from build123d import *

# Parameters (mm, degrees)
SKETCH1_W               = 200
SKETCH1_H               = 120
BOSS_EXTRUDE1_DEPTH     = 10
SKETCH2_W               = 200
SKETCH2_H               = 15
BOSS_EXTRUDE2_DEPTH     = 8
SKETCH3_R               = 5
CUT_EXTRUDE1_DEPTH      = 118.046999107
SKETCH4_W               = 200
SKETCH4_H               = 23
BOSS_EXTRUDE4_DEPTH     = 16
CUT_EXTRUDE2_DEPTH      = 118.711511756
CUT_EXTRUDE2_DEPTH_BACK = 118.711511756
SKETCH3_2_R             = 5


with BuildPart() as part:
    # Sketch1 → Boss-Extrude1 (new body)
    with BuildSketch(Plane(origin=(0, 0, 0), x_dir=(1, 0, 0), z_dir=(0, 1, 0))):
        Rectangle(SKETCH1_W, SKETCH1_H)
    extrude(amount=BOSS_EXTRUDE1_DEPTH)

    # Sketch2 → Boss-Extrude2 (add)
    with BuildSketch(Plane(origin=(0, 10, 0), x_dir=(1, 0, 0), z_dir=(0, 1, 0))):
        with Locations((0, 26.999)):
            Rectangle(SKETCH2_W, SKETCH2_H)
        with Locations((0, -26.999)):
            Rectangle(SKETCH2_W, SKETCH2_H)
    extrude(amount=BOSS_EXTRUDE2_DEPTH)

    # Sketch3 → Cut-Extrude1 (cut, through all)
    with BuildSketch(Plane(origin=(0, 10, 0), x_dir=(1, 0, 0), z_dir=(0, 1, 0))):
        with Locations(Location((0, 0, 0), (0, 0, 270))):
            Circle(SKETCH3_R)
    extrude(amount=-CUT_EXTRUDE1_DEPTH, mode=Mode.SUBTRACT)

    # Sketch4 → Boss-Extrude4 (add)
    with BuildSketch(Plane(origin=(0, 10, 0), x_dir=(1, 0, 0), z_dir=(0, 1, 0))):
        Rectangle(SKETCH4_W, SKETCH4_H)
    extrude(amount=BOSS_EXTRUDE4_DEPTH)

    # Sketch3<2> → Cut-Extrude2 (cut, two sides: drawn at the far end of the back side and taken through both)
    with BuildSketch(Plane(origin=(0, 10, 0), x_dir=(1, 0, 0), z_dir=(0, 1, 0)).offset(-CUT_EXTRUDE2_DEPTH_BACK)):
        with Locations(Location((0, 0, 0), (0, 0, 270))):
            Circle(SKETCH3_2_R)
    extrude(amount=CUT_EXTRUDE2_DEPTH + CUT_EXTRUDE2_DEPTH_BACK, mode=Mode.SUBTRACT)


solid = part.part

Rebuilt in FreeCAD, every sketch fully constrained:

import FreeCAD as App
import Part
import Sketcher
from FreeCAD import Vector

doc = App.newDocument("Part")
body = doc.addObject("PartDesign::Body", "Body")

sketch1 = body.newObject("Sketcher::SketchObject", "Sketch")
sketch1.AttachmentSupport = (doc.getObject("XZ_Plane"), [""])
sketch1.MapMode = "FlatFace"
sketch1.addGeometry([
    Part.LineSegment(Vector(-100, -60, 0), Vector(-100, 60, 0)),
    Part.LineSegment(Vector(-100, 60, 0), Vector(100, 60, 0)),
    Part.LineSegment(Vector(100, 60, 0), Vector(100, -60, 0)),
    Part.LineSegment(Vector(100, -60, 0), Vector(-100, -60, 0)),
], False)
sketch1.addConstraint([
    Sketcher.Constraint("Coincident", 0, 2, 1, 1),
    Sketcher.Constraint("Coincident", 1, 2, 2, 1),
    Sketcher.Constraint("Coincident", 2, 2, 3, 1),
    Sketcher.Constraint("Coincident", 3, 2, 0, 1),
    Sketcher.Constraint("Vertical", 0),
    Sketcher.Constraint("Horizontal", 1),
    Sketcher.Constraint("Vertical", 2),
    Sketcher.Constraint("Horizontal", 3),
    Sketcher.Constraint("Symmetric", 0, 2, 2, 2, -1, 1),
    Sketcher.Constraint("DistanceX", 1, 1, 1, 2, 200.0),
    Sketcher.Constraint("DistanceY", 0, 1, 0, 2, 120.0),
])
pad1 = body.newObject("PartDesign::Pad", "Pad")
pad1.Profile = sketch1
pad1.Length = 10
pad1.Reversed = True

sketch2 = body.newObject("Sketcher::SketchObject", "Sketch001")
sketch2.AttachmentSupport = (doc.getObject("XZ_Plane"), [""])
sketch2.MapMode = "FlatFace"
sketch2.AttachmentOffset = App.Placement(Vector(0, 0, -10), App.Rotation())
sketch2.addGeometry([
    Part.LineSegment(Vector(-100, -34, 0), Vector(-100, -19, 0)),
    Part.LineSegment(Vector(-100, -19, 0), Vector(100, -19, 0)),
    Part.LineSegment(Vector(100, -19, 0), Vector(100, -34, 0)),
    Part.LineSegment(Vector(100, -34, 0), Vector(-100, -34, 0)),
    Part.LineSegment(Vector(-100, 19, 0), Vector(-100, 34, 0)),
    Part.LineSegment(Vector(-100, 34, 0), Vector(100, 34, 0)),
    Part.LineSegment(Vector(100, 34, 0), Vector(100, 19, 0)),
    Part.LineSegment(Vector(100, 19, 0), Vector(-100, 19, 0)),
], False)
sketch2.addConstraint([
    Sketcher.Constraint("Coincident", 0, 2, 1, 1),
    Sketcher.Constraint("Coincident", 1, 2, 2, 1),
    Sketcher.Constraint("Coincident", 2, 2, 3, 1),
    Sketcher.Constraint("Coincident", 3, 2, 0, 1),
    Sketcher.Constraint("Coincident", 4, 2, 5, 1),
    Sketcher.Constraint("Coincident", 5, 2, 6, 1),
    Sketcher.Constraint("Coincident", 6, 2, 7, 1),
    Sketcher.Constraint("Coincident", 7, 2, 4, 1),
    Sketcher.Constraint("Vertical", 0),
    Sketcher.Constraint("Horizontal", 1),
    Sketcher.Constraint("Vertical", 2),
    Sketcher.Constraint("Horizontal", 3),
    Sketcher.Constraint("Vertical", 4),
    Sketcher.Constraint("Horizontal", 5),
    Sketcher.Constraint("Vertical", 6),
    Sketcher.Constraint("Horizontal", 7),
    Sketcher.Constraint("Symmetric", 2, 2, 4, 2, -1, 1),
    Sketcher.Constraint("Symmetric", 0, 2, 6, 2, -1, 1),
    Sketcher.Constraint("Vertical", 3, 2, 4, 2),
    Sketcher.Constraint("DistanceX", 1, 1, 1, 2, 200.0),
    Sketcher.Constraint("DistanceY", 0, 1, 0, 2, 15.0),
    Sketcher.Constraint("DistanceY", 0, 2, -1, 1, 19.499),
])
pad2 = body.newObject("PartDesign::Pad", "Pad001")
pad2.Profile = sketch2
pad2.Length = 8
pad2.Reversed = True

sketch3 = body.newObject("Sketcher::SketchObject", "Sketch002")
sketch3.AttachmentSupport = (doc.getObject("XZ_Plane"), [""])
sketch3.MapMode = "FlatFace"
sketch3.AttachmentOffset = App.Placement(Vector(0, 0, -10), App.Rotation())
sketch3.addGeometry(Part.Circle(Vector(0, 0, 0), Vector(0, 0, 1), 5), False)
sketch3.addConstraint([
    Sketcher.Constraint("Coincident", 0, 3, -1, 1),
    Sketcher.Constraint("Diameter", 0, 10.0),
])
pocket1 = body.newObject("PartDesign::Pocket", "Pocket")
pocket1.Profile = sketch3
pocket1.Type = "ThroughAll"
pocket1.Reversed = True

sketch4 = body.newObject("Sketcher::SketchObject", "Sketch003")
sketch4.AttachmentSupport = (doc.getObject("XZ_Plane"), [""])
sketch4.MapMode = "FlatFace"
sketch4.AttachmentOffset = App.Placement(Vector(0, 0, -10), App.Rotation())
sketch4.addGeometry([
    Part.LineSegment(Vector(-100, -12, 0), Vector(-100, 12, 0)),
    Part.LineSegment(Vector(-100, 12, 0), Vector(100, 12, 0)),
    Part.LineSegment(Vector(100, 12, 0), Vector(100, -12, 0)),
    Part.LineSegment(Vector(100, -12, 0), Vector(-100, -12, 0)),
], False)
sketch4.addConstraint([
    Sketcher.Constraint("Coincident", 0, 2, 1, 1),
    Sketcher.Constraint("Coincident", 1, 2, 2, 1),
    Sketcher.Constraint("Coincident", 2, 2, 3, 1),
    Sketcher.Constraint("Coincident", 3, 2, 0, 1),
    Sketcher.Constraint("Vertical", 0),
    Sketcher.Constraint("Horizontal", 1),
    Sketcher.Constraint("Vertical", 2),
    Sketcher.Constraint("Horizontal", 3),
    Sketcher.Constraint("Symmetric", 0, 2, 2, 2, -1, 1),
    Sketcher.Constraint("DistanceX", 1, 1, 1, 2, 200.0),
    Sketcher.Constraint("DistanceY", 0, 1, 0, 2, 23.0),
])
pad3 = body.newObject("PartDesign::Pad", "Pad002")
pad3.Profile = sketch4
pad3.Length = 16
pad3.Reversed = True

sketch5 = body.newObject("Sketcher::SketchObject", "Sketch004")
sketch5.AttachmentSupport = (doc.getObject("XZ_Plane"), [""])
sketch5.MapMode = "FlatFace"
sketch5.AttachmentOffset = App.Placement(Vector(0, 0, -10), App.Rotation())
sketch5.addGeometry(Part.Circle(Vector(0, 0, 0), Vector(0, 0, 1), 5), False)
sketch5.addConstraint([
    Sketcher.Constraint("Coincident", 0, 3, -1, 1),
    Sketcher.Constraint("Diameter", 0, 10.0),
])
pocket2 = body.newObject("PartDesign::Pocket", "Pocket001")
pocket2.Profile = sketch5
pocket2.Type = "ThroughAll"
pocket2.Midplane = True

doc.recompute()
